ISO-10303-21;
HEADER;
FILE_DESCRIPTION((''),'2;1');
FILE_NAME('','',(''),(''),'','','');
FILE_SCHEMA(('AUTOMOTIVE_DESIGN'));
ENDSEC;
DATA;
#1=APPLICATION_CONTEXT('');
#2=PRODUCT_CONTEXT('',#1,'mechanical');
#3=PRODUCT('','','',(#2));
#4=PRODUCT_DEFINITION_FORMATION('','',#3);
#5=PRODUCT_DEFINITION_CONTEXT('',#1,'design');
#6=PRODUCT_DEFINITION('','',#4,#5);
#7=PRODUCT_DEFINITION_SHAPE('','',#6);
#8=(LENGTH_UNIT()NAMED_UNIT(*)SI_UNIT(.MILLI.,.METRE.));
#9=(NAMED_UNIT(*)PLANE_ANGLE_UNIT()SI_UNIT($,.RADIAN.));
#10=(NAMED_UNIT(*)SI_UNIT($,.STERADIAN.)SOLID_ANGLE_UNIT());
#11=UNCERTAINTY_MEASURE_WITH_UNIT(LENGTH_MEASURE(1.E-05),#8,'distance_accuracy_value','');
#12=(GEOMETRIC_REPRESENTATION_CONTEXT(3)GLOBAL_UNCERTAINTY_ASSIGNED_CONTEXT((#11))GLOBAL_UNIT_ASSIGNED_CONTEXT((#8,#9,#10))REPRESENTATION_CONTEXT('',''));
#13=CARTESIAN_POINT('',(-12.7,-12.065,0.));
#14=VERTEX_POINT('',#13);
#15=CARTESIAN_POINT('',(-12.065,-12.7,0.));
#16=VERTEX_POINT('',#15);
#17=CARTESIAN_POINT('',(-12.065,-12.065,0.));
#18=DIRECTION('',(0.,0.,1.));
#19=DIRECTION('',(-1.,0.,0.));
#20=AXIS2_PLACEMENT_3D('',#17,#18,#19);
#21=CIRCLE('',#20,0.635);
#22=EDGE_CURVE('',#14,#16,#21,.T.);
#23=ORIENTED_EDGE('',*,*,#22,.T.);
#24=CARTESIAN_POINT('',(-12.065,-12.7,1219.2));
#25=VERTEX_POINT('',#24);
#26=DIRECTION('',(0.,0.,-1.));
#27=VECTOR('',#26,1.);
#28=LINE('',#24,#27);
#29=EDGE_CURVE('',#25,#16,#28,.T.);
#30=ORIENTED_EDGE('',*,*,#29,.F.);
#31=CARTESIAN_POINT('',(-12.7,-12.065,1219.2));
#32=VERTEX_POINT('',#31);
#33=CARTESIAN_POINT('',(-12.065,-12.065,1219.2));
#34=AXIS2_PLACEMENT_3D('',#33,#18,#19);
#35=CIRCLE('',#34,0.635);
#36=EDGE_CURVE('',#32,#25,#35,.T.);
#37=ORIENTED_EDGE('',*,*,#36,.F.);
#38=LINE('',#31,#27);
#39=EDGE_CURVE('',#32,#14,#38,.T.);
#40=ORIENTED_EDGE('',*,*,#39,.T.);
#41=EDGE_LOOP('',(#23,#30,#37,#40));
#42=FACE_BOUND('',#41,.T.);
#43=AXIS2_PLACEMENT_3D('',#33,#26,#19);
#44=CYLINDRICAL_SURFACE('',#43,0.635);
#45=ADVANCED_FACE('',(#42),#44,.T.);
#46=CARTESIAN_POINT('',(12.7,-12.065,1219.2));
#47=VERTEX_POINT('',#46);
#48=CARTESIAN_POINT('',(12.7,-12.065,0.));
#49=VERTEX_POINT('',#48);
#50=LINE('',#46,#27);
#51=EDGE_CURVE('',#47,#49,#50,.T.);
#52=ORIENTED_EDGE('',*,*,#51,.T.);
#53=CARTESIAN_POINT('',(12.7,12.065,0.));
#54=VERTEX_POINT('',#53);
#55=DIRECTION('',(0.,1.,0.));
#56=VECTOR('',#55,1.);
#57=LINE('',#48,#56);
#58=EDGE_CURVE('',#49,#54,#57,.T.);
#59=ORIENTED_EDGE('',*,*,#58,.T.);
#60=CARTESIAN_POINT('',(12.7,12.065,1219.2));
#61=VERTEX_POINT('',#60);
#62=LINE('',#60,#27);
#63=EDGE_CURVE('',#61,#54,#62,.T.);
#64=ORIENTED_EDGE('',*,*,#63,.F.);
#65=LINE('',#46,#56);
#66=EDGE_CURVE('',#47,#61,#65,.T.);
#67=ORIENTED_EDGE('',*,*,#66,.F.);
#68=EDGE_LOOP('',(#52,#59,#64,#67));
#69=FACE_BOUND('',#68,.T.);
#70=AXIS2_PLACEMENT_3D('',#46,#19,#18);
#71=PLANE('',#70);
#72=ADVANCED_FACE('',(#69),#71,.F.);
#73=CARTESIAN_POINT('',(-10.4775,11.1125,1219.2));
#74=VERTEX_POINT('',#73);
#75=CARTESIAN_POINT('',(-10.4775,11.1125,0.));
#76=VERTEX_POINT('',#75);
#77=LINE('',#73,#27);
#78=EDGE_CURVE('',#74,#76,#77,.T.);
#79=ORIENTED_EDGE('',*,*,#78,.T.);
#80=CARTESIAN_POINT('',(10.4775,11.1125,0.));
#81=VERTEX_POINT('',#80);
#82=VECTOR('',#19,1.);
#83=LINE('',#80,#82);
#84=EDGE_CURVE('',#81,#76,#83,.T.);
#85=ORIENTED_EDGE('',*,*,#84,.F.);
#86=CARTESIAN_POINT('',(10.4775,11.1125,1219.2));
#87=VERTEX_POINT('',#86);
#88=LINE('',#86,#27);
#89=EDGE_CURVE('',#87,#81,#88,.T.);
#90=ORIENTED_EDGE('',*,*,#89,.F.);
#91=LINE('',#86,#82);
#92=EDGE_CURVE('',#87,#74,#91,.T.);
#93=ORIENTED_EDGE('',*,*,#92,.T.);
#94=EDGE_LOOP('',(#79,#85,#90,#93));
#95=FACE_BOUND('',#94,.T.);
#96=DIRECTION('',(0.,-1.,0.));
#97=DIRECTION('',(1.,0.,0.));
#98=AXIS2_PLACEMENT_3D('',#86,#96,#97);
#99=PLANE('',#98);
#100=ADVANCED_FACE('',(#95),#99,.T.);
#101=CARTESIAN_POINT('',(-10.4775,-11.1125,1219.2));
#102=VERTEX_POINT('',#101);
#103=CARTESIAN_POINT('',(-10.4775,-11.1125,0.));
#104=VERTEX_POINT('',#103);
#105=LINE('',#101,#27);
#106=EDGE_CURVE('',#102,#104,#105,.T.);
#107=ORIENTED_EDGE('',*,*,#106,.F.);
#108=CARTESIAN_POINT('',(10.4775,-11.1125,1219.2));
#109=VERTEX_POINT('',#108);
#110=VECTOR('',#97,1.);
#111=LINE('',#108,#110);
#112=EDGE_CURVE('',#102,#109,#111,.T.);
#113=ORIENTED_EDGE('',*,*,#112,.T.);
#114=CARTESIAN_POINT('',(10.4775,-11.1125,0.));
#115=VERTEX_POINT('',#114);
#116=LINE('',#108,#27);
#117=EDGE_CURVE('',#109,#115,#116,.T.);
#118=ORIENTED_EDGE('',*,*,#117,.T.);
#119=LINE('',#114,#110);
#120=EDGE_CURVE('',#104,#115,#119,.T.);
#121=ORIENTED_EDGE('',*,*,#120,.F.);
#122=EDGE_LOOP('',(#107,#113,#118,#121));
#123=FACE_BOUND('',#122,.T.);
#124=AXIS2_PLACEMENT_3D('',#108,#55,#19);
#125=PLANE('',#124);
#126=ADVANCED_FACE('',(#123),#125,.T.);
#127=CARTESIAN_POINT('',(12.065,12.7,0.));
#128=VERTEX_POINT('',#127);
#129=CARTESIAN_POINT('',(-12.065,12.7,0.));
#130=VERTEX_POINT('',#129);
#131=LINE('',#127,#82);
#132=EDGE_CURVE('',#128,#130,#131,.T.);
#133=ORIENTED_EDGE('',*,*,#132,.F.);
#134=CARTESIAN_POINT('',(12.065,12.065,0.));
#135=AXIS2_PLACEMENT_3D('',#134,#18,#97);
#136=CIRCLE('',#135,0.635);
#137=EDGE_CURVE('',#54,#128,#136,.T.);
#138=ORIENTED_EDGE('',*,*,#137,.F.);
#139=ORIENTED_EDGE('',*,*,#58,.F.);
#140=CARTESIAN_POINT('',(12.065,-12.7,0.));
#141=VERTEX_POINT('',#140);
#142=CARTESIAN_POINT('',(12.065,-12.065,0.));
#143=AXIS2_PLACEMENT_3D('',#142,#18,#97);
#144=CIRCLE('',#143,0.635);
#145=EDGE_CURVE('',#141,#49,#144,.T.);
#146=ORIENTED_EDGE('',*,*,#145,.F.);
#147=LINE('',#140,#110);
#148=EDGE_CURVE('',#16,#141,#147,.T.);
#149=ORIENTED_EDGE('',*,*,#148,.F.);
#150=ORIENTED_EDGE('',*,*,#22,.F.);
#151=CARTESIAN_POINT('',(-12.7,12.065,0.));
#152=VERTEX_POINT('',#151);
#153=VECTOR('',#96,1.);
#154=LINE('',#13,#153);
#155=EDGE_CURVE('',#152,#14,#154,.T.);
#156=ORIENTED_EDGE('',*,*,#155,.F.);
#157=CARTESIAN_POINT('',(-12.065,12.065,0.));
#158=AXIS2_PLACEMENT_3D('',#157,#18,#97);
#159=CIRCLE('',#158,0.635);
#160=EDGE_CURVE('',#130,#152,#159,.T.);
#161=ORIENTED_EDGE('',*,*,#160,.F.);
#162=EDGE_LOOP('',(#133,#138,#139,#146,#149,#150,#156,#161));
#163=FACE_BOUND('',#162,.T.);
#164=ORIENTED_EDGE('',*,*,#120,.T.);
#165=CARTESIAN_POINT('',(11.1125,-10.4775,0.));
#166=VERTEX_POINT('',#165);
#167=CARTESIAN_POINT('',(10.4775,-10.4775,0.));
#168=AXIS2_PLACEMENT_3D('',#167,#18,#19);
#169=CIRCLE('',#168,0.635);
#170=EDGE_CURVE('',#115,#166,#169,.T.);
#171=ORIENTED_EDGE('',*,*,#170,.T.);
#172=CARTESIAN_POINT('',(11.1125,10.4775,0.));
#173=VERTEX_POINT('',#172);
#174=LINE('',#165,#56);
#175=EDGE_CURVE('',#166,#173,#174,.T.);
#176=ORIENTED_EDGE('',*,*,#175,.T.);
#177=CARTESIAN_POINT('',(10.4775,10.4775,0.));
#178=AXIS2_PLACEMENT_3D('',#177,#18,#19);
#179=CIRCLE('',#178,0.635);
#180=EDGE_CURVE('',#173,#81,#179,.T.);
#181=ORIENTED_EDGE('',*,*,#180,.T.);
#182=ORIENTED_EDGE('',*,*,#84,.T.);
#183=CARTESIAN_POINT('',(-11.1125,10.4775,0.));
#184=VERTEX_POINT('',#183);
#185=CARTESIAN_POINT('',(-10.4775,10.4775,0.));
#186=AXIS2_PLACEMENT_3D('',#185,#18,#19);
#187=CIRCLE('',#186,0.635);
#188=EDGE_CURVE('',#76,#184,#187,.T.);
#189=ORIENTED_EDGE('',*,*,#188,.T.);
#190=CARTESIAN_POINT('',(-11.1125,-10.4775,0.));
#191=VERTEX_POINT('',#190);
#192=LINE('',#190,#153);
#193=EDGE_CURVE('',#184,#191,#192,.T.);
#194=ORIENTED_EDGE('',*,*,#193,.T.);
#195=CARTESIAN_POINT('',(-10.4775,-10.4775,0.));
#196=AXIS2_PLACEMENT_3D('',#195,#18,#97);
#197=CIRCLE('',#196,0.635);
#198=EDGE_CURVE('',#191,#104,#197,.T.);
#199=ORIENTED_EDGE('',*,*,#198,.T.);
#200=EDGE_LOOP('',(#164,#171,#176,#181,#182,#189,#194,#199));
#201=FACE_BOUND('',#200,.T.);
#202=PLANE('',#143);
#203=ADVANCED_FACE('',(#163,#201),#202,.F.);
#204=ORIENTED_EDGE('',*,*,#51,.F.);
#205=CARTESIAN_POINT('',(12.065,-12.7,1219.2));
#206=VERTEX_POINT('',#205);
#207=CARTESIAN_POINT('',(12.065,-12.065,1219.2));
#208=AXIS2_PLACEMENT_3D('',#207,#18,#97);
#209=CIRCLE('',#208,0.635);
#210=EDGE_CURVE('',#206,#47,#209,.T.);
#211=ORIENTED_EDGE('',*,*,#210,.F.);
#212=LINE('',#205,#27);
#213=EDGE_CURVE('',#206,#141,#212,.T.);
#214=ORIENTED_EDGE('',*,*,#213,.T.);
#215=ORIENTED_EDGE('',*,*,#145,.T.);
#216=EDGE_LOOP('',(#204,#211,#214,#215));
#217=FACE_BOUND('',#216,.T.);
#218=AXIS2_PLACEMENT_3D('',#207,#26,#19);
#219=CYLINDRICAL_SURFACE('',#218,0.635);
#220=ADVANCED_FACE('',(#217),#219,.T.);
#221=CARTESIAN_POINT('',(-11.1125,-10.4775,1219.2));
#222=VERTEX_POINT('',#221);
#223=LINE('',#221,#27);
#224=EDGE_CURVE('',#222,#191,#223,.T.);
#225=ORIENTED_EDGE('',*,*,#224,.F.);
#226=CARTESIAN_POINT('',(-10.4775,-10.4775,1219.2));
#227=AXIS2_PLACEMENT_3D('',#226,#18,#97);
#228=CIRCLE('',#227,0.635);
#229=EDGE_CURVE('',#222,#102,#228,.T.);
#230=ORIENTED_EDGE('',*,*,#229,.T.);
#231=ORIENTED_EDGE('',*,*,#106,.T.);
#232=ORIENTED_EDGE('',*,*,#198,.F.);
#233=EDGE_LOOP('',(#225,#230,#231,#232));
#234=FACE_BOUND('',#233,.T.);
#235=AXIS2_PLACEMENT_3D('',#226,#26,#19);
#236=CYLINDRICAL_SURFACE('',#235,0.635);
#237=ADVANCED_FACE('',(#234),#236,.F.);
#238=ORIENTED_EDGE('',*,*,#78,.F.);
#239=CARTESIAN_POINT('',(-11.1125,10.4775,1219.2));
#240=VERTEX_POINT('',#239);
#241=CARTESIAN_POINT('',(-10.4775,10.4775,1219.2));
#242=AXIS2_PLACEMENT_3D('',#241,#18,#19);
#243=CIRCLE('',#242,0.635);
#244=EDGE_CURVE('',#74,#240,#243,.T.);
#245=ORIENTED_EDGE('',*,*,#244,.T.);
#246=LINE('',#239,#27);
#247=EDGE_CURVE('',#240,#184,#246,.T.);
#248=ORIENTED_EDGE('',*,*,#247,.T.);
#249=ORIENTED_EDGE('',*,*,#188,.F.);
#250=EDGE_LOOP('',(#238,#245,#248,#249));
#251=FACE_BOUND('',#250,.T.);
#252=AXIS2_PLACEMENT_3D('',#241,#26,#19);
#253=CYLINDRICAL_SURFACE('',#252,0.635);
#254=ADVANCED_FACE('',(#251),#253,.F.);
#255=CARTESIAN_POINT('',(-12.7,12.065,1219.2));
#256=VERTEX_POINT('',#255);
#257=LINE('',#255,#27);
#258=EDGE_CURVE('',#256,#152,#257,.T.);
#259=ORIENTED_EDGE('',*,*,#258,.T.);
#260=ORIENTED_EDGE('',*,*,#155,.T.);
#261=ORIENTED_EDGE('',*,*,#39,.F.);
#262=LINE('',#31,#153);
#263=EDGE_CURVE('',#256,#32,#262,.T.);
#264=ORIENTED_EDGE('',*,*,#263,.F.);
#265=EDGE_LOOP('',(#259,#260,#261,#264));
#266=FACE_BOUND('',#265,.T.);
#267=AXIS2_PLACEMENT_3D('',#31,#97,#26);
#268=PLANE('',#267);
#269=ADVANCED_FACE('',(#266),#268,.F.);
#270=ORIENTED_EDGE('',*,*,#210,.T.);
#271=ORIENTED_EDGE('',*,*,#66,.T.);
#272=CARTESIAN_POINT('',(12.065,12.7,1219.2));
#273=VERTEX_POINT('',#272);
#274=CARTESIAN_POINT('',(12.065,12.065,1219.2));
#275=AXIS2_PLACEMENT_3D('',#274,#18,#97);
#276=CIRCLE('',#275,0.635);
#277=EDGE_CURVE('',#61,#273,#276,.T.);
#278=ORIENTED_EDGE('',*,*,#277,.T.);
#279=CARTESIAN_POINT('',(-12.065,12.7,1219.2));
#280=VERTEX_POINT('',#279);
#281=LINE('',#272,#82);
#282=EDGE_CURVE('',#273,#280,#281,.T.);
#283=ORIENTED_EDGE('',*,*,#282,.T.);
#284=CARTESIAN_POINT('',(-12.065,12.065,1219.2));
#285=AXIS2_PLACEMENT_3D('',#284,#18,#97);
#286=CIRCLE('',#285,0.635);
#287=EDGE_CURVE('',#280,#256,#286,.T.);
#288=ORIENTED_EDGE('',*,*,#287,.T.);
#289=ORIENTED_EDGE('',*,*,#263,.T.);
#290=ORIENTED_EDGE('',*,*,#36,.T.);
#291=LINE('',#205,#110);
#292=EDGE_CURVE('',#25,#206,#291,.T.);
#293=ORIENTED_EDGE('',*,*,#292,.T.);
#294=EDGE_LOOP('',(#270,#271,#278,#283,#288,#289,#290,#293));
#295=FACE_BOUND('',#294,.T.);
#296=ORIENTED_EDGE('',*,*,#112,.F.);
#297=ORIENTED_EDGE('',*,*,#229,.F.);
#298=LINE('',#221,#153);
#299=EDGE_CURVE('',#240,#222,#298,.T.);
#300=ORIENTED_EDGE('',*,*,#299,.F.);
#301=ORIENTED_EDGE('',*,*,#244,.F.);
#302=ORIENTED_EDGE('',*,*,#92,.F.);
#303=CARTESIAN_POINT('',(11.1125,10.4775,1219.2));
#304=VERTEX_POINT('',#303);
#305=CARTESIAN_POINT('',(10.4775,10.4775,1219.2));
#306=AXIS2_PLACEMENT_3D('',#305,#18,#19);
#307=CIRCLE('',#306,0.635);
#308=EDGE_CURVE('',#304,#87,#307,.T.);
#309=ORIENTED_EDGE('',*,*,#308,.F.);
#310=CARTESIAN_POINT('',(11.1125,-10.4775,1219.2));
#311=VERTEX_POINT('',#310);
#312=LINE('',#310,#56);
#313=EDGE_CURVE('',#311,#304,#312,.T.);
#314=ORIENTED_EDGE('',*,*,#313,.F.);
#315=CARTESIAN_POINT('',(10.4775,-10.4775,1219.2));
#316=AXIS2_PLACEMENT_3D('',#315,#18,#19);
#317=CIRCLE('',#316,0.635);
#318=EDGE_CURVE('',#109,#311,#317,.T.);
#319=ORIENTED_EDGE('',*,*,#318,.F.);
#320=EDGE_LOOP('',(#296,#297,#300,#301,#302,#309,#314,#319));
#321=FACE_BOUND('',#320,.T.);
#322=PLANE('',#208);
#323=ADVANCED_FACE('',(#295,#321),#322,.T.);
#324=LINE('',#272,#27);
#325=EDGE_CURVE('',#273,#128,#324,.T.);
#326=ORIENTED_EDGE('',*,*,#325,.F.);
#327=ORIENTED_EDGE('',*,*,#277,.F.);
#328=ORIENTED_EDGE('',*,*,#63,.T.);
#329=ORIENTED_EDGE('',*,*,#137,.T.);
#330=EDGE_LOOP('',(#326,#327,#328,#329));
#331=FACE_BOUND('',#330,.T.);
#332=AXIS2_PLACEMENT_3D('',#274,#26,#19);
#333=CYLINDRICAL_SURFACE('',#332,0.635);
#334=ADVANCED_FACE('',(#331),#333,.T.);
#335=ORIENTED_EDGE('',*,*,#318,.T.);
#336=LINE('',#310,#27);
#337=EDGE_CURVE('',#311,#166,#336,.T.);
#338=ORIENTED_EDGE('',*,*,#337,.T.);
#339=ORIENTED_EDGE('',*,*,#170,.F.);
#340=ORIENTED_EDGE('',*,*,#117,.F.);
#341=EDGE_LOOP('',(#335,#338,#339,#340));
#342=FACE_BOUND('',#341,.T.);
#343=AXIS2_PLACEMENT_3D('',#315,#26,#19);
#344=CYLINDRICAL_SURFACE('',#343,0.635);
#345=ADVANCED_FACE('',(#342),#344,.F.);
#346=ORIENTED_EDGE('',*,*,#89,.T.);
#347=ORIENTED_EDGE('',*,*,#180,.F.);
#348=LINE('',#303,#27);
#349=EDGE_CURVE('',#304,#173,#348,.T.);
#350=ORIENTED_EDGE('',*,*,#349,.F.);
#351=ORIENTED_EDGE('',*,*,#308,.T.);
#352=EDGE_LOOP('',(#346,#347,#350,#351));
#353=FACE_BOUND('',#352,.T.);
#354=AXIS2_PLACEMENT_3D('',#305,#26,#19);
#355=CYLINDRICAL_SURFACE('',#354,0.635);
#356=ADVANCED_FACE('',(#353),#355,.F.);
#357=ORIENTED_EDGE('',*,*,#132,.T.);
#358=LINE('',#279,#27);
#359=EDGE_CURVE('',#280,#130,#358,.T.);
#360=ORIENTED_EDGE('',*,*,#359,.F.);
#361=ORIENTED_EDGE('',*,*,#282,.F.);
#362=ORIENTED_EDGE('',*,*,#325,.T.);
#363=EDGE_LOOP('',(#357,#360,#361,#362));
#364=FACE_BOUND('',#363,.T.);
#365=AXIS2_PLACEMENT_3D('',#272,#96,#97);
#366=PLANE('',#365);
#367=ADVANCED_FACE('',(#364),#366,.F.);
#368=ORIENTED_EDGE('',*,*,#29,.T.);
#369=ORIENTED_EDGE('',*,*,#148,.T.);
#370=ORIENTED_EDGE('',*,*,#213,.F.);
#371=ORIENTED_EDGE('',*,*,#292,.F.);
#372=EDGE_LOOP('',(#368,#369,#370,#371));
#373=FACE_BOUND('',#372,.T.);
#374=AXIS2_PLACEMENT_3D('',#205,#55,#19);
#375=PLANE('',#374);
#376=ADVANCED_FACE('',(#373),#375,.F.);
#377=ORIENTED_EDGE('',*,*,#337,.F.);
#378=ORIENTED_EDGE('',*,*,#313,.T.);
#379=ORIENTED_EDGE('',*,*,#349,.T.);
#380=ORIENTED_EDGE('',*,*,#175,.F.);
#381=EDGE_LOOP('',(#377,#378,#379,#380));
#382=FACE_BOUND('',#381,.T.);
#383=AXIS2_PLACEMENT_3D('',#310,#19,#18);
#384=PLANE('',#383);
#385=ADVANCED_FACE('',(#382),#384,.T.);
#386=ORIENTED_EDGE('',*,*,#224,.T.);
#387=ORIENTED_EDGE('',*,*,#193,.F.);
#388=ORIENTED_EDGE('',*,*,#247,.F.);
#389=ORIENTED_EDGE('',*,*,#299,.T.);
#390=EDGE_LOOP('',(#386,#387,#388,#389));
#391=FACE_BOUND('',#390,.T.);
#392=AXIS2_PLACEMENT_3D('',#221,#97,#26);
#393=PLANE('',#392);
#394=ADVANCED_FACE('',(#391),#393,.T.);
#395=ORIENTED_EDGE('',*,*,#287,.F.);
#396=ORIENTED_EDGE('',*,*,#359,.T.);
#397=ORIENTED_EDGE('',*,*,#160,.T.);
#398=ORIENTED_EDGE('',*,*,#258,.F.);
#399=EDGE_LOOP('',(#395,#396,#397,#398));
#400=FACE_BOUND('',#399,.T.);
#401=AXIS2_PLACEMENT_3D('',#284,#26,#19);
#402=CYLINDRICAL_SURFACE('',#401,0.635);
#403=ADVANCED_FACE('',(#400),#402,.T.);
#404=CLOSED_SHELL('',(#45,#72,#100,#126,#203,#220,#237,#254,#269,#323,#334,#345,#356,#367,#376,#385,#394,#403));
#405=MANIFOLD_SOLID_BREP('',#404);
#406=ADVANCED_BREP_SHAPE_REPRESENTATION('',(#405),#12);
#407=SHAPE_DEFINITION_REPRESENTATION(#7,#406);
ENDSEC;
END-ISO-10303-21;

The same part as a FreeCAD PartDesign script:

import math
import FreeCAD as App
import Part
import Sketcher
from FreeCAD import Vector
Q = App.Units.Quantity

doc = App.newDocument("Part")
body = doc.addObject("PartDesign::Body", "Body")

sketch1 = body.newObject("Sketcher::SketchObject", "Sketch")
sketch1.AttachmentSupport = (doc.getObject("XY_Plane"), [""])
sketch1.MapMode = "FlatFace"
sketch1.addGeometry(Part.LineSegment(Vector(-12.065, -12.7, 0), Vector(12.065, -12.7, 0)), False)
sketch1.addGeometry(Part.ArcOfCircle(Part.Circle(Vector(12.065, -12.065, 0), Vector(0, 0, 1), 0.635), math.radians(-90), math.radians(0)), False)
sketch1.addGeometry(Part.LineSegment(Vector(12.7, -12.065, 0), Vector(12.7, 12.065, 0)), False)
sketch1.addGeometry(Part.ArcOfCircle(Part.Circle(Vector(12.065, 12.065, 0), Vector(0, 0, 1), 0.635), math.radians(0), math.radians(90)), False)
sketch1.addGeometry(Part.LineSegment(Vector(12.065, 12.7, 0), Vector(-12.065, 12.7, 0)), False)
sketch1.addGeometry(Part.ArcOfCircle(Part.Circle(Vector(-12.065, 12.065, 0), Vector(0, 0, 1), 0.635), math.radians(90), math.radians(180)), False)
sketch1.addGeometry(Part.LineSegment(Vector(-12.7, 12.065, 0), Vector(-12.7, -12.065, 0)), False)
sketch1.addGeometry(Part.ArcOfCircle(Part.Circle(Vector(-12.065, -12.065, 0), Vector(0, 0, 1), 0.635), math.radians(180), math.radians(270)), False)
sketch1.addGeometry(Part.LineSegment(Vector(-11.1125, -10.4775, 0), Vector(-11.1125, 10.4775, 0)), False)
sketch1.addGeometry(Part.ArcOfCircle(Part.Circle(Vector(-10.4775, 10.4775, 0), Vector(0, 0, 1), 0.635), math.radians(90), math.radians(180)), False)
sketch1.addGeometry(Part.LineSegment(Vector(-10.4775, 11.1125, 0), Vector(10.4775, 11.1125, 0)), False)
sketch1.addGeometry(Part.ArcOfCircle(Part.Circle(Vector(10.4775, 10.4775, 0), Vector(0, 0, 1), 0.635), math.radians(0), math.radians(90)), False)
sketch1.addGeometry(Part.LineSegment(Vector(11.1125, 10.4775, 0), Vector(11.1125, -10.4775, 0)), False)
sketch1.addGeometry(Part.ArcOfCircle(Part.Circle(Vector(10.4775, -10.4775, 0), Vector(0, 0, 1), 0.635), math.radians(-90), math.radians(0)), False)
sketch1.addGeometry(Part.LineSegment(Vector(10.4775, -11.1125, 0), Vector(-10.4775, -11.1125, 0)), False)
sketch1.addGeometry(Part.ArcOfCircle(Part.Circle(Vector(-10.4775, -10.4775, 0), Vector(0, 0, 1), 0.635), math.radians(180), math.radians(270)), False)
sketch1.addConstraint(Sketcher.Constraint("Tangent", 0, 2, 1, 1))
sketch1.addConstraint(Sketcher.Constraint("Tangent", 1, 2, 2, 1))
sketch1.addConstraint(Sketcher.Constraint("Tangent", 2, 2, 3, 1))
sketch1.addConstraint(Sketcher.Constraint("Tangent", 3, 2, 4, 1))
sketch1.addConstraint(Sketcher.Constraint("Tangent", 4, 2, 5, 1))
sketch1.addConstraint(Sketcher.Constraint("Tangent", 5, 2, 6, 1))
sketch1.addConstraint(Sketcher.Constraint("Tangent", 6, 2, 7, 1))
sketch1.addConstraint(Sketcher.Constraint("Tangent", 7, 2, 0, 1))
sketch1.addConstraint(Sketcher.Constraint("Tangent", 8, 2, 9, 2))
sketch1.addConstraint(Sketcher.Constraint("Tangent", 9, 1, 10, 1))
sketch1.addConstraint(Sketcher.Constraint("Tangent", 10, 2, 11, 2))
sketch1.addConstraint(Sketcher.Constraint("Tangent", 11, 1, 12, 1))
sketch1.addConstraint(Sketcher.Constraint("Tangent", 12, 2, 13, 2))
sketch1.addConstraint(Sketcher.Constraint("Tangent", 13, 1, 14, 1))
sketch1.addConstraint(Sketcher.Constraint("Tangent", 14, 2, 15, 2))
sketch1.addConstraint(Sketcher.Constraint("Tangent", 15, 1, 8, 1))
sketch1.addConstraint(Sketcher.Constraint("Horizontal", 0))
sketch1.addConstraint(Sketcher.Constraint("Vertical", 2))
sketch1.addConstraint(Sketcher.Constraint("Horizontal", 4))
sketch1.addConstraint(Sketcher.Constraint("Vertical", 6))
sketch1.addConstraint(Sketcher.Constraint("Vertical", 8))
sketch1.addConstraint(Sketcher.Constraint("Horizontal", 10))
sketch1.addConstraint(Sketcher.Constraint("Vertical", 12))
sketch1.addConstraint(Sketcher.Constraint("Horizontal", 14))
sketch1.addConstraint(Sketcher.Constraint("Equal", 1, 3))
sketch1.addConstraint(Sketcher.Constraint("Equal", 3, 5))
sketch1.addConstraint(Sketcher.Constraint("Equal", 5, 7))
sketch1.addConstraint(Sketcher.Constraint("Equal", 7, 9))
sketch1.addConstraint(Sketcher.Constraint("Equal", 9, 11))
sketch1.addConstraint(Sketcher.Constraint("Equal", 11, 13))
sketch1.addConstraint(Sketcher.Constraint("Equal", 13, 15))
sketch1.addConstraint(Sketcher.Constraint("Symmetric", 1, 3, 5, 3, -1, 1))
sketch1.addConstraint(Sketcher.Constraint("Symmetric", 9, 3, 13, 3, -1, 1))
sketch1.addConstraint(Sketcher.Constraint("Equal", 4, 2))
sketch1.addConstraint(Sketcher.Constraint("Equal", 14, 8))
sketch1.addConstraint(Sketcher.Constraint("Radius", 1, Q("0.025 in")))
sketch1.addConstraint(Sketcher.Constraint("DistanceX", 0, 1, 0, 2, Q("0.95 in")))
sketch1.addConstraint(Sketcher.Constraint("DistanceX", 10, 1, 10, 2, Q("0.825 in")))
pad1 = body.newObject("PartDesign::Pad", "Pad")
pad1.Profile = sketch1
pad1.Length = Q("48 in")

doc.recompute()
